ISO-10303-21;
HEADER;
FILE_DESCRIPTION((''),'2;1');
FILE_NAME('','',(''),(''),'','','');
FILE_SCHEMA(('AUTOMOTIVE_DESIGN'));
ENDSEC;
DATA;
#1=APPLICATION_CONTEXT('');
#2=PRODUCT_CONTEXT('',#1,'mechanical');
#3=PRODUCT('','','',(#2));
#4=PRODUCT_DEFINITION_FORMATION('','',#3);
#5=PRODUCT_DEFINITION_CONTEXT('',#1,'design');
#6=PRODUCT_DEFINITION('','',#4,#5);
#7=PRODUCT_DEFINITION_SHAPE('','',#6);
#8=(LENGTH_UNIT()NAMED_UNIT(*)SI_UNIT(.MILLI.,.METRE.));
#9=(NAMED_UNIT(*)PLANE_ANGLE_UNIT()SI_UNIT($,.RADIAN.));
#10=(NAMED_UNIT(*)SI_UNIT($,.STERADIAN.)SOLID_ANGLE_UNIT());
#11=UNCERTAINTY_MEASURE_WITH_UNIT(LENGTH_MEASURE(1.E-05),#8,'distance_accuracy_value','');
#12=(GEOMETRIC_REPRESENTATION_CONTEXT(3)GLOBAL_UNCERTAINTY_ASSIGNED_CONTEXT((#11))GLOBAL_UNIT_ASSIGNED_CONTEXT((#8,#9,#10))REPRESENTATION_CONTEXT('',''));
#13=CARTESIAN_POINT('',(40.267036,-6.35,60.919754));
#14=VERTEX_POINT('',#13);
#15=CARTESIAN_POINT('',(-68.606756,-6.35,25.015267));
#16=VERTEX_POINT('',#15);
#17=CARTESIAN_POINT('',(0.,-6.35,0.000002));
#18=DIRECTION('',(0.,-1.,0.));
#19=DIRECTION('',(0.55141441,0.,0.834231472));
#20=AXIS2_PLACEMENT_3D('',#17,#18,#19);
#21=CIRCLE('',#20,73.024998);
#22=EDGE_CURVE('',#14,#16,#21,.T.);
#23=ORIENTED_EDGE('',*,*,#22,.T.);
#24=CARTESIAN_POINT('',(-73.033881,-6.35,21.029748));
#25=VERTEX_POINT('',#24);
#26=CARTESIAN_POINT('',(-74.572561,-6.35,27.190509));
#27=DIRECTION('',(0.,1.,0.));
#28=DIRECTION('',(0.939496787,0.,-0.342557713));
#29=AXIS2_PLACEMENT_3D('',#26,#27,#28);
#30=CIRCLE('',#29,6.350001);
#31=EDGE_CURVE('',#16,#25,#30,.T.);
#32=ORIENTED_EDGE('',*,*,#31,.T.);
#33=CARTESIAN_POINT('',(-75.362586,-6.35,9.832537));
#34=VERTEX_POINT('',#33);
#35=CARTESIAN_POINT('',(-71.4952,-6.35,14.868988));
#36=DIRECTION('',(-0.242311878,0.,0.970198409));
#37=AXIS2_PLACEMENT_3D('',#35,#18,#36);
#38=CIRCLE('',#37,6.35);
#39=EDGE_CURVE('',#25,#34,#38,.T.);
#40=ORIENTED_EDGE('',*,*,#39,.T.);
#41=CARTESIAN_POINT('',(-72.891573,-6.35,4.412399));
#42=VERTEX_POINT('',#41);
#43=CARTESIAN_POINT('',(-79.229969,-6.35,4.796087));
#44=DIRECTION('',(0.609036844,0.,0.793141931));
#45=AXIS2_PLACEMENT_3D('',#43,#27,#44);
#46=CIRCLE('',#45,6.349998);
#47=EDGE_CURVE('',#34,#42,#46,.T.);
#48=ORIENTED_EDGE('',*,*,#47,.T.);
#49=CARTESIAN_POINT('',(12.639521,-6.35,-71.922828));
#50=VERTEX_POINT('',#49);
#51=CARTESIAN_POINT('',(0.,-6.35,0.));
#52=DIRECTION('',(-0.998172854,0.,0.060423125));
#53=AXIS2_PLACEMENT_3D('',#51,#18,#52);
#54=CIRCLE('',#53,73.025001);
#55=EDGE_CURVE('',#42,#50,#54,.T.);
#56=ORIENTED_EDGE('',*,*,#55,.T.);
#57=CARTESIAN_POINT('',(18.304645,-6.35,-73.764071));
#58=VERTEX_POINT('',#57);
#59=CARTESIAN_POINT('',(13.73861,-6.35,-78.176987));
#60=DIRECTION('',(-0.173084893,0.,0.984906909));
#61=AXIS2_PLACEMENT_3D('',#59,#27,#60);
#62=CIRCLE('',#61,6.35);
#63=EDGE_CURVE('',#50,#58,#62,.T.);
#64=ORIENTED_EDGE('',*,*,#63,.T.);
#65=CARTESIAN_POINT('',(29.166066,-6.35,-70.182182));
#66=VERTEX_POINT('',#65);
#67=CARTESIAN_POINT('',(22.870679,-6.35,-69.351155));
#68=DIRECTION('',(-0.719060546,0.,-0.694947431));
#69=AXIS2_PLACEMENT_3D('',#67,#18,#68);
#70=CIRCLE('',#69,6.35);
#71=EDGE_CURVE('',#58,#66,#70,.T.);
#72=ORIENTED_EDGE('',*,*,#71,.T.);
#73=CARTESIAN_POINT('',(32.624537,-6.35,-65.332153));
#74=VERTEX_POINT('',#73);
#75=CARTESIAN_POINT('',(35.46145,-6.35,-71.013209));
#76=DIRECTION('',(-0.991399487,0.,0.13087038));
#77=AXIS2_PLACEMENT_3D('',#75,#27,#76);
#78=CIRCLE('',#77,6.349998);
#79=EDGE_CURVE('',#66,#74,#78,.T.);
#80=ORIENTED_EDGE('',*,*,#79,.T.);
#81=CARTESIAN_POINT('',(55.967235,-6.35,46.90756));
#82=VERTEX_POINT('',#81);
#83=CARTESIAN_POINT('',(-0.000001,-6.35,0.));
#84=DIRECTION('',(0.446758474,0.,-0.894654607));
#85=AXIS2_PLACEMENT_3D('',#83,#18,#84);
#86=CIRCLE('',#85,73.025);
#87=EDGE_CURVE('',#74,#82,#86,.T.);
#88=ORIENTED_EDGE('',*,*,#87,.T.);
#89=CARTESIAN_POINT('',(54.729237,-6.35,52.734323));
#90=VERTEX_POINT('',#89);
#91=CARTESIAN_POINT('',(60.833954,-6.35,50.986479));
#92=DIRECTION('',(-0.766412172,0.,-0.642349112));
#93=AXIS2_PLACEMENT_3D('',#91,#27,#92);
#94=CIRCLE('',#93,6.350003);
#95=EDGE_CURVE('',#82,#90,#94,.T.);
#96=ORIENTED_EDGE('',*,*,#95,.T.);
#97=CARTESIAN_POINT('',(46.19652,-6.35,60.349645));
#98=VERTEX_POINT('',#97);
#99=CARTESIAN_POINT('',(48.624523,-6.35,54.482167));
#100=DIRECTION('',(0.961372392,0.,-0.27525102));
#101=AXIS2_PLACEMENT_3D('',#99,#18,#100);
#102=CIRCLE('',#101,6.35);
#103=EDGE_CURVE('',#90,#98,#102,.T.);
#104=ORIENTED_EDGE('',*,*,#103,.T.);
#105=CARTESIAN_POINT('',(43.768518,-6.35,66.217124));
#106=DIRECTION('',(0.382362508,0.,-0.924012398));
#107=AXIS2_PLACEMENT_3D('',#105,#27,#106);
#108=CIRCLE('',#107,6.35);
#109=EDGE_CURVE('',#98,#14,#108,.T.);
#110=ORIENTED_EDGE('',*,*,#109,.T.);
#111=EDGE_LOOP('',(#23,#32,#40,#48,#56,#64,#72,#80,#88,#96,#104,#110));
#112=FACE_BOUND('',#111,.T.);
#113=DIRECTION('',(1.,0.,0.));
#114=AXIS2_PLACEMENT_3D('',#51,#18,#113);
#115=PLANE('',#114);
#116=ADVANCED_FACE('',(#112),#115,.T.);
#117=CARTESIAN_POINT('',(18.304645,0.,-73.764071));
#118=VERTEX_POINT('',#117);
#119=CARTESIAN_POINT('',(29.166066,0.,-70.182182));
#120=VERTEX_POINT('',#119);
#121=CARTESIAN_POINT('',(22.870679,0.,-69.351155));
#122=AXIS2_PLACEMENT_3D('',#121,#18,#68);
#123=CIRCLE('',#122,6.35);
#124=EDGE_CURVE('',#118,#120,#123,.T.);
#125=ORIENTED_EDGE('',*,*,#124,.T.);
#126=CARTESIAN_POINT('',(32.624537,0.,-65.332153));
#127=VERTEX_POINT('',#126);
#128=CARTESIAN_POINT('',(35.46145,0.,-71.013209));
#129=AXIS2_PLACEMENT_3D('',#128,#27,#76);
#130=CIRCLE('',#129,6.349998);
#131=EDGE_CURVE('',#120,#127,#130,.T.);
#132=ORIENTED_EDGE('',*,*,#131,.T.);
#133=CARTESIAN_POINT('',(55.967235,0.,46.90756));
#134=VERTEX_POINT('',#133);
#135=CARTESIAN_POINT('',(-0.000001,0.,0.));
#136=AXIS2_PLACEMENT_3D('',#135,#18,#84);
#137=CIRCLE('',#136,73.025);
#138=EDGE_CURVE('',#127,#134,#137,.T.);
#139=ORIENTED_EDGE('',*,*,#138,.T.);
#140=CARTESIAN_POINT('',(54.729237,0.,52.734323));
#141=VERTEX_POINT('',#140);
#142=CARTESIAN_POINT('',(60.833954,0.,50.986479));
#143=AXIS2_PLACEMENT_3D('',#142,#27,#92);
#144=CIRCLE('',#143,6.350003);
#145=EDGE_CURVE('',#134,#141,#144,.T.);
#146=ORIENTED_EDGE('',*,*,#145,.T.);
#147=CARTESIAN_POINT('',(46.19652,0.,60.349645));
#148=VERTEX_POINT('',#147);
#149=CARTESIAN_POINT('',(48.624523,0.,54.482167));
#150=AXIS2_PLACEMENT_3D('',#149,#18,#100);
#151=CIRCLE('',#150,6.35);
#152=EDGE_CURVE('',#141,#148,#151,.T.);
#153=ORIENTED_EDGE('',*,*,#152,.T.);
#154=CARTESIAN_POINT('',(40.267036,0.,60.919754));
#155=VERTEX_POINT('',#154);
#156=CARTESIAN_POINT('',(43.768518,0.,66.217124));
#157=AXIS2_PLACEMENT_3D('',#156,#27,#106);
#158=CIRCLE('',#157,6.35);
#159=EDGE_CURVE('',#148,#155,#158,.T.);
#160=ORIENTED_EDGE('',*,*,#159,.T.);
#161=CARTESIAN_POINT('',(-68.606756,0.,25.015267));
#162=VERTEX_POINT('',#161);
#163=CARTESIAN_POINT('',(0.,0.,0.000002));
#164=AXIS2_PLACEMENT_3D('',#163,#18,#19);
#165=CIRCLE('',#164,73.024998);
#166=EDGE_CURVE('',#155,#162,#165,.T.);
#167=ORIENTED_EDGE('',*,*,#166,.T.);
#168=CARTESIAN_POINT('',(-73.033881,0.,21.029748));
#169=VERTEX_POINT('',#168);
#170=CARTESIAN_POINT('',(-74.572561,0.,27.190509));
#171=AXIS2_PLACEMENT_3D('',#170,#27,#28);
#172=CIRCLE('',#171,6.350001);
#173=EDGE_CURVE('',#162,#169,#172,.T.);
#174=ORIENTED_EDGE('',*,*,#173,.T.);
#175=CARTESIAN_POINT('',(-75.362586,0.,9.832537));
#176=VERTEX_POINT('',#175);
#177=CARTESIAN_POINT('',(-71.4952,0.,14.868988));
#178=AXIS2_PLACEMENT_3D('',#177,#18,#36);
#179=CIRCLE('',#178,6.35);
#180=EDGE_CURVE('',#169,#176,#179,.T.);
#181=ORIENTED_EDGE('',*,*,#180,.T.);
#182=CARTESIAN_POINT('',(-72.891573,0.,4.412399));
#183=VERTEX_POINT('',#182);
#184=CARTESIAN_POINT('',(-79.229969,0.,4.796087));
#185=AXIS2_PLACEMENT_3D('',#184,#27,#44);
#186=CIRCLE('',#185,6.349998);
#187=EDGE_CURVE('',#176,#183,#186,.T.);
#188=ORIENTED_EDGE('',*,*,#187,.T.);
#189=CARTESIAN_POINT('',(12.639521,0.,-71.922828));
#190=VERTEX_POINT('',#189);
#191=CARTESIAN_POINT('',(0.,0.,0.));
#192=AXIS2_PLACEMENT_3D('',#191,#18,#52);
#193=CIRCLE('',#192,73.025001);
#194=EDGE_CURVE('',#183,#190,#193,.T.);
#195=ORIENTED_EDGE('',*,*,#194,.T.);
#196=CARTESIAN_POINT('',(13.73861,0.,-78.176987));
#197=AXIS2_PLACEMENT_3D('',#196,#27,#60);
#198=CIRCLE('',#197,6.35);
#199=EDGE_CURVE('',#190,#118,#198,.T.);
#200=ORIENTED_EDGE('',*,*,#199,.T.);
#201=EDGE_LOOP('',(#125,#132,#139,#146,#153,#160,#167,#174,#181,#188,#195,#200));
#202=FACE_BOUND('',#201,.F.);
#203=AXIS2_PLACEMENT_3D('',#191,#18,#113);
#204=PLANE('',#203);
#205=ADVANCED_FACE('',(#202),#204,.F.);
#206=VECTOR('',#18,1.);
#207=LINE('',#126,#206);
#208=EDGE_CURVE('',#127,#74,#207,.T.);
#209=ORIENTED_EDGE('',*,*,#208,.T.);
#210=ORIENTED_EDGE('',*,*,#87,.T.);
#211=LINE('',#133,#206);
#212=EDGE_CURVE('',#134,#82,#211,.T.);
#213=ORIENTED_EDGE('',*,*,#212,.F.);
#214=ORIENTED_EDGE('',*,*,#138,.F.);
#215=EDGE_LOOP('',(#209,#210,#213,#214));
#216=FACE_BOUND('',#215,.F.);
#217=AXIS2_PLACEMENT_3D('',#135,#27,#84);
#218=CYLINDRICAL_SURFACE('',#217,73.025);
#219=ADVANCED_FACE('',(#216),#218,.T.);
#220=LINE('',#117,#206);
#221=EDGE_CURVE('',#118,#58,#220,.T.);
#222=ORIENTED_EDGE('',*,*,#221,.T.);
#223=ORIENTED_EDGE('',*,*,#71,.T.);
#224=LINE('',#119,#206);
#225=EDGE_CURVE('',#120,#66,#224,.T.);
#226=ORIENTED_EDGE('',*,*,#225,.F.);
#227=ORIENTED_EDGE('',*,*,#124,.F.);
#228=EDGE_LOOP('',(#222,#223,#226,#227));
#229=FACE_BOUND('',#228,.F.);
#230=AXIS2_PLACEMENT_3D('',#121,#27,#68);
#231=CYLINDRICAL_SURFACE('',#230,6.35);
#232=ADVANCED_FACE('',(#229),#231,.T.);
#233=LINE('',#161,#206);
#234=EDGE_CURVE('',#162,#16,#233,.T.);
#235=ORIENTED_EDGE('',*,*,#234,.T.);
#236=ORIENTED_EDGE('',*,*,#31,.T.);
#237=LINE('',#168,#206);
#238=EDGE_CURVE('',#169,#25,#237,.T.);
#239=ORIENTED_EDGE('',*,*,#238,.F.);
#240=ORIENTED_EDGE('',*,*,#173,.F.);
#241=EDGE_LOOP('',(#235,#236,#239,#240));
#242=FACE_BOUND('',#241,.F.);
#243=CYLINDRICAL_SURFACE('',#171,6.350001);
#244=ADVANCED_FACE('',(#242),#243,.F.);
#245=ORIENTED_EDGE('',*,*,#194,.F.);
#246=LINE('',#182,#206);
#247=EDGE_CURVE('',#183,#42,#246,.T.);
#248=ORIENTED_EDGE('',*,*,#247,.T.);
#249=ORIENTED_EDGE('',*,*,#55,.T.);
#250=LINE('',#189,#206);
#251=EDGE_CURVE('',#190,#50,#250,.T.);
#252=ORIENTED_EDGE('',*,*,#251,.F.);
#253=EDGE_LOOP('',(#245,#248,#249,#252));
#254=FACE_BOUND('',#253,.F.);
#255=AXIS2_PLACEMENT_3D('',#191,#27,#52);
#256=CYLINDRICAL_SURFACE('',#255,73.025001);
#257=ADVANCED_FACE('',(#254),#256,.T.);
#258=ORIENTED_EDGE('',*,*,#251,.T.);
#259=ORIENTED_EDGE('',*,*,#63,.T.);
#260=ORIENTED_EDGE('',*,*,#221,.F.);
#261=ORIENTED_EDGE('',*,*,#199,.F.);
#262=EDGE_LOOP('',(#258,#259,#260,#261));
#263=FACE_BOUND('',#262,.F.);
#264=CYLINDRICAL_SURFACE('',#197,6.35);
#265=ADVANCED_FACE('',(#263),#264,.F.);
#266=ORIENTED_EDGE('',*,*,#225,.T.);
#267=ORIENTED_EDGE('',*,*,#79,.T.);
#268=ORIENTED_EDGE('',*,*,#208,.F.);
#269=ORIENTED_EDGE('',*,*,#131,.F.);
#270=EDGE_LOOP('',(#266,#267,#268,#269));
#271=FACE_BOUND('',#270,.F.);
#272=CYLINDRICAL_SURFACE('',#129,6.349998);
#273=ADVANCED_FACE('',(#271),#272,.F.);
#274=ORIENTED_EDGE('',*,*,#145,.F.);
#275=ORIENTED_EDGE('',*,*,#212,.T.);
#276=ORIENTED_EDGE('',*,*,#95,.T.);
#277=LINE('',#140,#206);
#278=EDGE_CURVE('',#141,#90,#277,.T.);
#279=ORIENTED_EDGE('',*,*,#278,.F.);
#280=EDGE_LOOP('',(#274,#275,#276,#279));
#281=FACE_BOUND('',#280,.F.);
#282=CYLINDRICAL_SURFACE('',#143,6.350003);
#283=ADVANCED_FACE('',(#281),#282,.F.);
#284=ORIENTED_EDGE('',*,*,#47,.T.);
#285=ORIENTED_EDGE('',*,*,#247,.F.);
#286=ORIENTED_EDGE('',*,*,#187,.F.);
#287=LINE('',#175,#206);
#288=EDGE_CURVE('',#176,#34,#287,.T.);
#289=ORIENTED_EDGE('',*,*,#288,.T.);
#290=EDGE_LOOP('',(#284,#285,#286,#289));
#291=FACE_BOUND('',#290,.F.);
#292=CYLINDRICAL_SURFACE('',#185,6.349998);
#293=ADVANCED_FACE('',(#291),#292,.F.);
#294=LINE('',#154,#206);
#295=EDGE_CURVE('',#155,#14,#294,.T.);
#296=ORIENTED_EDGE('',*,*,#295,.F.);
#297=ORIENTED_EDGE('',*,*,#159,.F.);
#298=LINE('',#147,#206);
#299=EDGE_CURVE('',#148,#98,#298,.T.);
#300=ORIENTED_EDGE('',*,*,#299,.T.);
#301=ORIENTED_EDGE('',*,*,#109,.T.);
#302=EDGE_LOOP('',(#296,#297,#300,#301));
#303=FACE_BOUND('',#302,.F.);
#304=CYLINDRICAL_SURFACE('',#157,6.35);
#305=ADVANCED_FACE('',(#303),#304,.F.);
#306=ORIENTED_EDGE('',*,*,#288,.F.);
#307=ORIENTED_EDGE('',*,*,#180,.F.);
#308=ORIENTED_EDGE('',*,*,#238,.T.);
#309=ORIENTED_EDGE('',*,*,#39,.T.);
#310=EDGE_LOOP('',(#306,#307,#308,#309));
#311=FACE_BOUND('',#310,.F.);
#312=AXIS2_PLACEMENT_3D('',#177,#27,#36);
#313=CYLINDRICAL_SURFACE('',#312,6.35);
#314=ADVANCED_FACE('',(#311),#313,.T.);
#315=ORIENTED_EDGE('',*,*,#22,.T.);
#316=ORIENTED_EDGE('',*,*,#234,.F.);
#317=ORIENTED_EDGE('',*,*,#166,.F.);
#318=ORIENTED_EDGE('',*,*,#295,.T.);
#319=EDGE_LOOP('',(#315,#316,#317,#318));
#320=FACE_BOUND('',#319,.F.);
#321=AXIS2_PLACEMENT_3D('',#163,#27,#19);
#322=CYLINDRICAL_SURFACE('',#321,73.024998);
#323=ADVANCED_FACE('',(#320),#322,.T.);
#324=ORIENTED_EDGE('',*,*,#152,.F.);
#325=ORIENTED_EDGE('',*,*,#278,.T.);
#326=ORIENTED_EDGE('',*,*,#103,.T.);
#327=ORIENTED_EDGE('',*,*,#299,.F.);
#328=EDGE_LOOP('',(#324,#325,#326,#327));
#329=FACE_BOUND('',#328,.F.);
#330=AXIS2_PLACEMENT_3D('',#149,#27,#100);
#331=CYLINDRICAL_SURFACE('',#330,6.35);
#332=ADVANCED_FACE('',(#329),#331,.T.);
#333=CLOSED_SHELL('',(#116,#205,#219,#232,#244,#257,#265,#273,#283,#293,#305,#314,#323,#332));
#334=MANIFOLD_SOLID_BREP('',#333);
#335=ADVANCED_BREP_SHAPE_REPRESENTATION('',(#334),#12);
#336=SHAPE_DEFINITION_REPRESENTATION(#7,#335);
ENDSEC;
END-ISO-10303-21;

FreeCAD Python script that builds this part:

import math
import FreeCAD as App
import Part
import Sketcher

V = App.Vector
Q = App.Units.Quantity

doc = App.newDocument("Part")
body = doc.addObject("PartDesign::Body", "Body")

# Sketch on XZ plane
sketch1 = body.newObject("Sketcher::SketchObject", "Sketch")
sketch1.AttachmentSupport = (doc.getObject("XZ_Plane"), [""])
sketch1.MapMode = "FlatFace"
sketch1.addGeometry(Part.ArcOfCircle(Part.Circle(V(44, 66, 0), V(0, 0, 1), 6), math.radians(-123), math.radians(-68)), False)
sketch1.addGeometry(Part.ArcOfCircle(Part.Circle(V(0, 0, 0), V(0, 0, 1), 73), math.radians(57), math.radians(160)), False)
sketch1.addGeometry(Part.ArcOfCircle(Part.Circle(V(-75, 27, 0), V(0, 0, 1), 6), math.radians(-76), math.radians(-20)), False)
sketch1.addGeometry(Part.ArcOfCircle(Part.Circle(V(-71, 15, 0), V(0, 0, 1), 6), math.radians(104), math.radians(232)), False)
sketch1.addGeometry(Part.ArcOfCircle(Part.Circle(V(-79, 5, 0), V(0, 0, 1), 6), math.radians(-3), math.radians(52)), False)
sketch1.addGeometry(Part.ArcOfCircle(Part.Circle(V(0, 0, 0), V(0, 0, 1), 73), math.radians(177), math.radians(280)), False)
sketch1.addGeometry(Part.ArcOfCircle(Part.Circle(V(14, -78, 0), V(0, 0, 1), 6), math.radians(44), math.radians(100)), False)
sketch1.addGeometry(Part.ArcOfCircle(Part.Circle(V(23, -69, 0), V(0, 0, 1), 6), math.radians(-136), math.radians(-8)), False)
sketch1.addGeometry(Part.ArcOfCircle(Part.Circle(V(35, -71, 0), V(0, 0, 1), 6), math.radians(117), math.radians(172)), False)
sketch1.addGeometry(Part.ArcOfCircle(Part.Circle(V(0, 0, 0), V(0, 0, 1), 73), math.radians(-63), math.radians(40)), False)
sketch1.addGeometry(Part.ArcOfCircle(Part.Circle(V(61, 51, 0), V(0, 0, 1), 6), math.radians(164), math.radians(220)), False)
sketch1.addGeometry(Part.ArcOfCircle(Part.Circle(V(49, 54, 0), V(0, 0, 1), 6), math.radians(-16), math.radians(112)), False)
sketch1.addConstraint(Sketcher.Constraint("Tangent", 0, 1, 1, 1))
sketch1.addConstraint(Sketcher.Constraint("Tangent", 1, 2, 2, 2))
sketch1.addConstraint(Sketcher.Constraint("Tangent", 2, 1, 3, 1))
sketch1.addConstraint(Sketcher.Constraint("Tangent", 3, 2, 4, 2))
sketch1.addConstraint(Sketcher.Constraint("Tangent", 4, 1, 5, 1))
sketch1.addConstraint(Sketcher.Constraint("Tangent", 5, 2, 6, 2))
sketch1.addConstraint(Sketcher.Constraint("Tangent", 6, 1, 7, 1))
sketch1.addConstraint(Sketcher.Constraint("Tangent", 7, 2, 8, 2))
sketch1.addConstraint(Sketcher.Constraint("Tangent", 8, 1, 9, 1))
sketch1.addConstraint(Sketcher.Constraint("Tangent", 9, 2, 10, 2))
sketch1.addConstraint(Sketcher.Constraint("Tangent", 10, 1, 11, 1))
sketch1.addConstraint(Sketcher.Constraint("Tangent", 11, 2, 0, 2))
sketch1.addConstraint(Sketcher.Constraint("Coincident", 1, 3, -1, 1))
sketch1.addConstraint(Sketcher.Constraint("Coincident", 5, 3, -1, 1))
sketch1.addConstraint(Sketcher.Constraint("Coincident", 9, 3, -1, 1))
sketch1.addConstraint(Sketcher.Constraint("Equal", 0, 2))
sketch1.addConstraint(Sketcher.Constraint("Equal", 2, 3))
sketch1.addConstraint(Sketcher.Constraint("Equal", 3, 4))
sketch1.addConstraint(Sketcher.Constraint("Equal", 4, 6))
sketch1.addConstraint(Sketcher.Constraint("Equal", 6, 7))
sketch1.addConstraint(Sketcher.Constraint("Equal", 4, 8))
sketch1.addConstraint(Sketcher.Constraint("Equal", 5, 9))
sketch1.addConstraint(Sketcher.Constraint("Equal", 2, 10))
sketch1.addConstraint(Sketcher.Constraint("Equal", 8, 11))
sketch1.addConstraint(Sketcher.Constraint("Radius", 0, Q("0.25 in")))
sketch1.addConstraint(Sketcher.Constraint("Radius", 1, Q("2.8749999 in")))
sketch1.addConstraint(Sketcher.Constraint("Radius", 5, Q("2.875 in")))
sketch1.addConstraint(Sketcher.Constraint("DistanceY", 9, 2, 10, 1, Q("0.2294001 in")))
sketch1.addConstraint(Sketcher.Constraint("DistanceX", 3, 3, -1, 1, Q("71.4952 mm")))
sketch1.addConstraint(Sketcher.Constraint("DistanceY", -1, 1, 4, 1, Q("4.412399 mm")))
sketch1.addConstraint(Sketcher.Constraint("DistanceY", 7, 3, 8, 1, Q("4.019002 mm")))
sketch1.addConstraint(Sketcher.Constraint("DistanceX", 0, 1, 9, 2, Q("15.700199 mm")))
sketch1.addConstraint(Sketcher.Constraint("DistanceX", -1, 1, 6, 3, Q("13.73861 mm")))
pad1 = body.newObject("PartDesign::Pad", "Pad")
pad1.Profile = sketch1
pad1.Length = Q("0.25 in")

# Sketch on XZ plane
sketch2 = body.newObject("Sketcher::SketchObject", "Sketch001")
sketch2.AttachmentSupport = (doc.getObject("XZ_Plane"), [""])
sketch2.MapMode = "FlatFace"
sketch2.addGeometry(Part.ArcOfCircle(Part.Circle(V(44, 66, 0), V(0, 0, 1), 6), math.radians(-123), math.radians(-68)), False)
sketch2.addGeometry(Part.ArcOfCircle(Part.Circle(V(0, 0, 0), V(0, 0, 1), 73), math.radians(57), math.radians(160)), False)
sketch2.addGeometry(Part.ArcOfCircle(Part.Circle(V(-75, 27, 0), V(0, 0, 1), 6), math.radians(-76), math.radians(-20)), False)
sketch2.addGeometry(Part.ArcOfCircle(Part.Circle(V(-71, 15, 0), V(0, 0, 1), 6), math.radians(104), math.radians(232)), False)
sketch2.addGeometry(Part.ArcOfCircle(Part.Circle(V(-79, 5, 0), V(0, 0, 1), 6), math.radians(-3), math.radians(52)), False)
sketch2.addGeometry(Part.ArcOfCircle(Part.Circle(V(0, 0, 0), V(0, 0, 1), 73), math.radians(177), math.radians(280)), False)
sketch2.addGeometry(Part.ArcOfCircle(Part.Circle(V(14, -78, 0), V(0, 0, 1), 6), math.radians(44), math.radians(100)), False)
sketch2.addGeometry(Part.ArcOfCircle(Part.Circle(V(23, -69, 0), V(0, 0, 1), 6), math.radians(-136), math.radians(-8)), False)
sketch2.addGeometry(Part.ArcOfCircle(Part.Circle(V(35, -71, 0), V(0, 0, 1), 6), math.radians(117), math.radians(172)), False)
sketch2.addGeometry(Part.ArcOfCircle(Part.Circle(V(0, 0, 0), V(0, 0, 1), 73), math.radians(-63), math.radians(40)), False)
sketch2.addGeometry(Part.ArcOfCircle(Part.Circle(V(61, 51, 0), V(0, 0, 1), 6), math.radians(164), math.radians(220)), False)
sketch2.addGeometry(Part.ArcOfCircle(Part.Circle(V(49, 54, 0), V(0, 0, 1), 6), math.radians(-16), math.radians(112)), False)
sketch2.addConstraint(Sketcher.Constraint("Tangent", 0, 1, 1, 1))
sketch2.addConstraint(Sketcher.Constraint("Tangent", 1, 2, 2, 2))
sketch2.addConstraint(Sketcher.Constraint("Tangent", 2, 1, 3, 1))
sketch2.addConstraint(Sketcher.Constraint("Tangent", 3, 2, 4, 2))
sketch2.addConstraint(Sketcher.Constraint("Tangent", 4, 1, 5, 1))
sketch2.addConstraint(Sketcher.Constraint("Tangent", 5, 2, 6, 2))
sketch2.addConstraint(Sketcher.Constraint("Tangent", 6, 1, 7, 1))
sketch2.addConstraint(Sketcher.Constraint("Tangent", 7, 2, 8, 2))
sketch2.addConstraint(Sketcher.Constraint("Tangent", 8, 1, 9, 1))
sketch2.addConstraint(Sketcher.Constraint("Tangent", 9, 2, 10, 2))
sketch2.addConstraint(Sketcher.Constraint("Tangent", 10, 1, 11, 1))
sketch2.addConstraint(Sketcher.Constraint("Tangent", 11, 2, 0, 2))
sketch2.addConstraint(Sketcher.Constraint("Coincident", 1, 3, -1, 1))
sketch2.addConstraint(Sketcher.Constraint("Coincident", 5, 3, -1, 1))
sketch2.addConstraint(Sketcher.Constraint("Coincident", 9, 3, -1, 1))
sketch2.addConstraint(Sketcher.Constraint("Equal", 0, 2))
sketch2.addConstraint(Sketcher.Constraint("Equal", 2, 3))
sketch2.addConstraint(Sketcher.Constraint("Equal", 3, 4))
sketch2.addConstraint(Sketcher.Constraint("Equal", 4, 6))
sketch2.addConstraint(Sketcher.Constraint("Equal", 6, 7))
sketch2.addConstraint(Sketcher.Constraint("Equal", 4, 8))
sketch2.addConstraint(Sketcher.Constraint("Equal", 5, 9))
sketch2.addConstraint(Sketcher.Constraint("Equal", 2, 10))
sketch2.addConstraint(Sketcher.Constraint("Equal", 8, 11))
sketch2.addConstraint(Sketcher.Constraint("Radius", 0, Q("0.25 in")))
sketch2.addConstraint(Sketcher.Constraint("Radius", 1, Q("2.8749999 in")))
sketch2.addConstraint(Sketcher.Constraint("Radius", 5, Q("2.875 in")))
sketch2.addConstraint(Sketcher.Constraint("DistanceY", 9, 2, 10, 1, Q("0.2294001 in")))
sketch2.addConstraint(Sketcher.Constraint("DistanceX", 3, 3, -1, 1, Q("71.4952 mm")))
sketch2.addConstraint(Sketcher.Constraint("DistanceY", -1, 1, 4, 1, Q("4.412399 mm")))
sketch2.addConstraint(Sketcher.Constraint("DistanceY", 7, 3, 8, 1, Q("4.019002 mm")))
sketch2.addConstraint(Sketcher.Constraint("DistanceX", 0, 1, 9, 2, Q("15.700199 mm")))
sketch2.addConstraint(Sketcher.Constraint("DistanceX", -1, 1, 6, 3, Q("13.73861 mm")))
pad2 = body.newObject("PartDesign::Pad", "Pad001")
pad2.Profile = sketch2
pad2.Length = Q("0.25 in")

doc.recompute()
